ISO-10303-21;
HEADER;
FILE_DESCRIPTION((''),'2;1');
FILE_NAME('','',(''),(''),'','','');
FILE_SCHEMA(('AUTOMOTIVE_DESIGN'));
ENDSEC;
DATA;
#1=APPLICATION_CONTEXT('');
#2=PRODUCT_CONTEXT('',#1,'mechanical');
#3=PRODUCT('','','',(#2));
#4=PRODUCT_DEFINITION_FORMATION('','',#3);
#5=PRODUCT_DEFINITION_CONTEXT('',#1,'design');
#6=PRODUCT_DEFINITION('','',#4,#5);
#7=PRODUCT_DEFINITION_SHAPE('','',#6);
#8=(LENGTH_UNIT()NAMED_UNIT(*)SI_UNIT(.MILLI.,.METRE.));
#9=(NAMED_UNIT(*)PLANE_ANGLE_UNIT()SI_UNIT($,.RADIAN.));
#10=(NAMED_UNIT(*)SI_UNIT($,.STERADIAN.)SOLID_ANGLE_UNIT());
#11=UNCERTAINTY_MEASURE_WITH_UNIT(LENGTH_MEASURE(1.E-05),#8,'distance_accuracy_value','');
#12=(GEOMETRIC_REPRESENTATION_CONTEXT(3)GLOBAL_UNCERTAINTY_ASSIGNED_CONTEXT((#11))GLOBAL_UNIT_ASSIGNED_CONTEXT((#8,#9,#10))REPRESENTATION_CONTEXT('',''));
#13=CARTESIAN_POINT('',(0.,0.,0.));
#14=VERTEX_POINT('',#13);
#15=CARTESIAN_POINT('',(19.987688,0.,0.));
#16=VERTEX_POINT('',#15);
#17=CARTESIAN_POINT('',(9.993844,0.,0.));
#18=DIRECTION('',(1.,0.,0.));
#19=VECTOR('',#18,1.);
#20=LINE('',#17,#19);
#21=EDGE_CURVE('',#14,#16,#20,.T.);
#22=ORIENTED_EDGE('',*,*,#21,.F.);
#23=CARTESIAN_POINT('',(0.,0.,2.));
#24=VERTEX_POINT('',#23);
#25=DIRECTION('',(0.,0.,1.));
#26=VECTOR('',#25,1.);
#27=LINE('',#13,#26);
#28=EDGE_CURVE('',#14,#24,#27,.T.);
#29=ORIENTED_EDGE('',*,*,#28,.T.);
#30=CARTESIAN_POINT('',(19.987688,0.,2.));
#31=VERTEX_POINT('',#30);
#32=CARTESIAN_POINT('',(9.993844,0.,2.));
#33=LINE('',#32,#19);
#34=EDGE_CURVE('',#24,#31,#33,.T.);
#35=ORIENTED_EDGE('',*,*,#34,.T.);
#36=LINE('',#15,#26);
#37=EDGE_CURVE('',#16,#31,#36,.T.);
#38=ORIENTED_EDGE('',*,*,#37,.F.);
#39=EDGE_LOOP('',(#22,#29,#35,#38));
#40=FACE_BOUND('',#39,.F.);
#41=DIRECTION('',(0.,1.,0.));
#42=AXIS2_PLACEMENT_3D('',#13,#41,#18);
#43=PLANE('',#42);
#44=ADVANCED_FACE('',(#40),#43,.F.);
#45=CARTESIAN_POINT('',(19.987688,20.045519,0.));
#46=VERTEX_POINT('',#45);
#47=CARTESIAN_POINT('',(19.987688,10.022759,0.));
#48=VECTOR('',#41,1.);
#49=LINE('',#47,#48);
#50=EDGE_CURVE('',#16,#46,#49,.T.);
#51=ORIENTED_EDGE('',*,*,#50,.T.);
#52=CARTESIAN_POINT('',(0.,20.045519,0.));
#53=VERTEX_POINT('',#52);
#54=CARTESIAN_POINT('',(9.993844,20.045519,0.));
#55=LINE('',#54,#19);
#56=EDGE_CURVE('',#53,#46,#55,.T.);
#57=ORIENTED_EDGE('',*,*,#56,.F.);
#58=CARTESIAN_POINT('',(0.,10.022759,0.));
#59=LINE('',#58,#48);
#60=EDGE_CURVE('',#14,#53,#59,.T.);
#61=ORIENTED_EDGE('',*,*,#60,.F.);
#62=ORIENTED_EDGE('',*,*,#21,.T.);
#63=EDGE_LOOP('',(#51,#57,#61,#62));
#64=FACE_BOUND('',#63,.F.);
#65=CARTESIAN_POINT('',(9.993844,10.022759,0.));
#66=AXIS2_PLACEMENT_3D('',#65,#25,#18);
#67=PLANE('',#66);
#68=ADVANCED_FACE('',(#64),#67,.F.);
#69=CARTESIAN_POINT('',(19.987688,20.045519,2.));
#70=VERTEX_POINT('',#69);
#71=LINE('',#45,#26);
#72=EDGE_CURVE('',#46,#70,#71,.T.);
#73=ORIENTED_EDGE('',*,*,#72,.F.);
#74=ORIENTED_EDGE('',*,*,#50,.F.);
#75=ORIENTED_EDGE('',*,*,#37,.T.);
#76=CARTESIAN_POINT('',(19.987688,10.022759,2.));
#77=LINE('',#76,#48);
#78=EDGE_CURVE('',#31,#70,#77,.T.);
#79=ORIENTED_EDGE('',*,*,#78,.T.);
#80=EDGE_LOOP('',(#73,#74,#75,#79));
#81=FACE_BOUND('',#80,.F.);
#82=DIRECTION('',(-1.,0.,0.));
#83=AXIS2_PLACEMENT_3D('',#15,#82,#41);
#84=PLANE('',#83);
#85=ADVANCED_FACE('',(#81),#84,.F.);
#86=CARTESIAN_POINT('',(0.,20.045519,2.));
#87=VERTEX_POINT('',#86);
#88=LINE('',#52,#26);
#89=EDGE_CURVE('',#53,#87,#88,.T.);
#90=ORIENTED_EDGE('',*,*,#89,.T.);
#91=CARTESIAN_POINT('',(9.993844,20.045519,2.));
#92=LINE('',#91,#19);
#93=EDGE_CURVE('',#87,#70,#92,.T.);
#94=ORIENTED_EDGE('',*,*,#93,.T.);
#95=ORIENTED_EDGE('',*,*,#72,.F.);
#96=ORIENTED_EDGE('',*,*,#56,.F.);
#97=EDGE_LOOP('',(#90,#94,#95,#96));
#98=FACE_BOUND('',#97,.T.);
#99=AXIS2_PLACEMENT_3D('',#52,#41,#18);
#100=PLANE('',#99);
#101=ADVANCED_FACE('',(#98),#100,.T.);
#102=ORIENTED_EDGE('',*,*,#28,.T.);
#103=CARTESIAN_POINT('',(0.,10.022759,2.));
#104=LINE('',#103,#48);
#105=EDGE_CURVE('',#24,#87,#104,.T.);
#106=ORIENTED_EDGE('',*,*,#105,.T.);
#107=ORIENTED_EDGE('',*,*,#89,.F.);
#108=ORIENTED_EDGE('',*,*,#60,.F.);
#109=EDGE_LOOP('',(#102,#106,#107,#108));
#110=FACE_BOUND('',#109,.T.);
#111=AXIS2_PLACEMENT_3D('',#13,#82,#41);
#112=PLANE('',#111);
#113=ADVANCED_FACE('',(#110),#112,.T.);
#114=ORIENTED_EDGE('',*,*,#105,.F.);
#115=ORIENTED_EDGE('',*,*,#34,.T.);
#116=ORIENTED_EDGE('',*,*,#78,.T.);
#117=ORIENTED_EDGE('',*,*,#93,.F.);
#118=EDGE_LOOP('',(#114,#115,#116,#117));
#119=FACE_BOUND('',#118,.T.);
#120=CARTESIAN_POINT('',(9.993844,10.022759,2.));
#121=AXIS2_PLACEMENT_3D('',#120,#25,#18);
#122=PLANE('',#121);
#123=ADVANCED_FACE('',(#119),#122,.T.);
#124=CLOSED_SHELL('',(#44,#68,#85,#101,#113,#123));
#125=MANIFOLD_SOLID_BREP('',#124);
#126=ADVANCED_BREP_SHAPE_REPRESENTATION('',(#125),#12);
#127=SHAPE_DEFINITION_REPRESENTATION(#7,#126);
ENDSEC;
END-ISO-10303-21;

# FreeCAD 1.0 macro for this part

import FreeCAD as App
import Part
import Sketcher
from FreeCAD import Vector


def add_polygon(sketch, points):
    """Adds a closed chain of lines whose ends are joined by coincident constraints."""
    first, n = sketch.GeometryCount, len(points)
    for a, b in zip(points, points[1:] + points[:1]):
        sketch.addGeometry(Part.LineSegment(App.Vector(*a, 0), App.Vector(*b, 0)), False)
    for i in range(n):
        sketch.addConstraint(Sketcher.Constraint("Coincident", first + i, 2, first + (i + 1) % n, 1))

doc = App.newDocument("Part")
body = doc.addObject("PartDesign::Body", "Body")

# Sketch on XY plane
sketch1 = body.newObject("Sketcher::SketchObject", "Sketch")
sketch1.AttachmentSupport = (doc.getObject("XY_Plane"), [""])
sketch1.MapMode = "FlatFace"
add_polygon(sketch1, [(0, 20.045519), (0, 0), (19.987688, 0), (19.987688, 20.045519)])  # lines 0-3
sketch1.addConstraint(Sketcher.Constraint("Vertical", 0))
sketch1.addConstraint(Sketcher.Constraint("Horizontal", 1))
sketch1.addConstraint(Sketcher.Constraint("Vertical", 2))
sketch1.addConstraint(Sketcher.Constraint("Horizontal", 3))
sketch1.addConstraint(Sketcher.Constraint("Coincident", 0, 2, -1, 1))
sketch1.addConstraint(Sketcher.Constraint("DistanceY", 0, 2, 0, 1, 20.045519))
sketch1.addConstraint(Sketcher.Constraint("DistanceX", 1, 1, 1, 2, 19.987688))
pad1 = body.newObject("PartDesign::Pad", "Pad")
pad1.Profile = sketch1
pad1.Length = 2

doc.recompute()
